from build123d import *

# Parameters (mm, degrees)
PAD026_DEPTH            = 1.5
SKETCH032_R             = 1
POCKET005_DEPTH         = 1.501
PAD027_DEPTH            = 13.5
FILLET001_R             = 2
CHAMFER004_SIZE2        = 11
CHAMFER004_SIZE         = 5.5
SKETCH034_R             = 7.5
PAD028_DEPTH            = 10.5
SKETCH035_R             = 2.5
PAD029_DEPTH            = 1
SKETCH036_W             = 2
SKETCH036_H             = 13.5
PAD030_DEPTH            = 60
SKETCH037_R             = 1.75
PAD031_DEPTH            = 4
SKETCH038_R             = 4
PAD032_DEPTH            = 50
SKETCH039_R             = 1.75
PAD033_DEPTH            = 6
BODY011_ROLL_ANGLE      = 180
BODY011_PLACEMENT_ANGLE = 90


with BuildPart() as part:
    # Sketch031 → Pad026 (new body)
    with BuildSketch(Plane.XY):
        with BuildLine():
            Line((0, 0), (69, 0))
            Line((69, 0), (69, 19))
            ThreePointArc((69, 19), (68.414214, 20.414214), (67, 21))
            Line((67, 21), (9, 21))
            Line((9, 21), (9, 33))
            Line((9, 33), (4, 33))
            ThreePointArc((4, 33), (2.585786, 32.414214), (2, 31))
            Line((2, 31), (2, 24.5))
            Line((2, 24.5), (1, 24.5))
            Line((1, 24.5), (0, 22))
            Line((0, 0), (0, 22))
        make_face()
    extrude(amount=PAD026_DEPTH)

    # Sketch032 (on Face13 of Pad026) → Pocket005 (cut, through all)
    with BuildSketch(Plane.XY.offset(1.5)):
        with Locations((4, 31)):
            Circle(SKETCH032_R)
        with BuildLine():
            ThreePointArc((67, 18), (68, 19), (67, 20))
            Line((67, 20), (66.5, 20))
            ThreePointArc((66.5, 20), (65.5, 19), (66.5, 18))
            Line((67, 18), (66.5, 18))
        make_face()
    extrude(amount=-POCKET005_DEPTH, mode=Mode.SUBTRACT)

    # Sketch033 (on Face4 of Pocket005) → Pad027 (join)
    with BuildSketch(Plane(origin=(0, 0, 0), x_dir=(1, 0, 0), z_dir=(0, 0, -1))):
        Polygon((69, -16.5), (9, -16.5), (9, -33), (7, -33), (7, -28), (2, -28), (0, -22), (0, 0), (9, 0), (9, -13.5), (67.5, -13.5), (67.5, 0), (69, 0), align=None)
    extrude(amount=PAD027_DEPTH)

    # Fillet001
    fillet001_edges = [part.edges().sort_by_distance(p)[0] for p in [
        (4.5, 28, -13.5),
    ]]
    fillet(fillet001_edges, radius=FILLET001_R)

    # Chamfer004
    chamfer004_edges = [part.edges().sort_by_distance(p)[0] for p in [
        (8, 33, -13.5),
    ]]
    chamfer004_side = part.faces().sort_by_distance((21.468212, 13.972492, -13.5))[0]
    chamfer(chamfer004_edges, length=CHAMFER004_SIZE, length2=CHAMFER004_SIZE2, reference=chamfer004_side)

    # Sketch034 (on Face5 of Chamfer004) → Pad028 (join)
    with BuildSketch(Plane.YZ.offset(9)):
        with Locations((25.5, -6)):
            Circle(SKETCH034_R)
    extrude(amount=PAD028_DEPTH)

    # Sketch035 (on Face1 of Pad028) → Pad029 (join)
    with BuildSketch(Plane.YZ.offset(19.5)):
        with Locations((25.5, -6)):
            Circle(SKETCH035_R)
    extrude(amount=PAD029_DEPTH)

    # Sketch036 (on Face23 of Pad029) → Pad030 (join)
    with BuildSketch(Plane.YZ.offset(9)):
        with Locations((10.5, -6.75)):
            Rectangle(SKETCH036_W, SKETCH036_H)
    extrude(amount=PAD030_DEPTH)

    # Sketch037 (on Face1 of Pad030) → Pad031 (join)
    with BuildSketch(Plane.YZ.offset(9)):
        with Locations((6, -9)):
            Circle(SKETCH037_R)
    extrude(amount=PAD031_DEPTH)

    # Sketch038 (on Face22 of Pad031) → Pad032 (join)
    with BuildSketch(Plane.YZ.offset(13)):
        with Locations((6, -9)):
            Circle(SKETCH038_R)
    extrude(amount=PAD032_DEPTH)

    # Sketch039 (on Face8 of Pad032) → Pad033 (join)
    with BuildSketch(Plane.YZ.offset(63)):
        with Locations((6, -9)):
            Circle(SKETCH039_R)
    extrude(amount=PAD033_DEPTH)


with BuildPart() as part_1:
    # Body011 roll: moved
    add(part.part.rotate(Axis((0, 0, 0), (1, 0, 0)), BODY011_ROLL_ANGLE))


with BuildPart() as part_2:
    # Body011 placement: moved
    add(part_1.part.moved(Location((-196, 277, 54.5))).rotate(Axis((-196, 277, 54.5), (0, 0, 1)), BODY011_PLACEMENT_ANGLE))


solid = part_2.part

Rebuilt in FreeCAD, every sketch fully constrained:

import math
import FreeCAD as App
import Part
import Sketcher
Q = App.Units.Quantity


def edges_at(feature, points):
    """Names of the edges that pass closest to the given points."""
    edges = feature.Shape.Edges
    near = lambda p: min(range(len(edges)), key=lambda i: edges[i].distToShape(Part.Vertex(*p))[0])
    return sorted({f"Edge{near(p) + 1}" for p in points})

doc = App.newDocument("Part")
body = doc.addObject("PartDesign::Body", "Body")

# Sketch on XY plane
sketch1 = body.newObject("Sketcher::SketchObject", "Sketch")
sketch1.AttachmentSupport = (doc.getObject("XY_Plane"), [""])
sketch1.MapMode = "FlatFace"
sketch1.addGeometry([
    Part.LineSegment(App.Vector(0, 0, 0), App.Vector(69, 0, 0)),  # 0
    Part.LineSegment(App.Vector(69, 0, 0), App.Vector(69, 19, 0)),  # 1
    Part.ArcOfCircle(Part.Circle(App.Vector(67.000001, 19.000001, 0), App.Vector(0, 0, 1), 1.999999), math.radians(-0.000043), math.radians(90.000043)),  # 2
    Part.LineSegment(App.Vector(67, 21, 0), App.Vector(9, 21, 0)),  # 3
    Part.LineSegment(App.Vector(9, 21, 0), App.Vector(9, 33, 0)),  # 4
    Part.LineSegment(App.Vector(9, 33, 0), App.Vector(4, 33, 0)),  # 5
    Part.ArcOfCircle(Part.Circle(App.Vector(3.999999, 31.000001, 0), App.Vector(0, 0, 1), 1.999999), math.radians(89.999957), math.radians(180.000043)),  # 6
    Part.LineSegment(App.Vector(2, 31, 0), App.Vector(2, 24.5, 0)),  # 7
    Part.LineSegment(App.Vector(2, 24.5, 0), App.Vector(1, 24.5, 0)),  # 8
    Part.LineSegment(App.Vector(1, 24.5, 0), App.Vector(0, 22, 0)),  # 9
    Part.LineSegment(App.Vector(0, 22, 0), App.Vector(0, 0, 0)),  # 10
], False)
sketch1.addConstraint([
    Sketcher.Constraint("Coincident", 0, 2, 1, 1),
    Sketcher.Constraint("Tangent", 1, 2, 2, 1),
    Sketcher.Constraint("Tangent", 2, 2, 3, 1),
    Sketcher.Constraint("Coincident", 3, 2, 4, 1),
    Sketcher.Constraint("Coincident", 4, 2, 5, 1),
    Sketcher.Constraint("Tangent", 5, 2, 6, 1),
    Sketcher.Constraint("Tangent", 6, 2, 7, 1),
    Sketcher.Constraint("Coincident", 7, 2, 8, 1),
    Sketcher.Constraint("Coincident", 8, 2, 9, 1),
    Sketcher.Constraint("Coincident", 9, 2, 10, 1),
    Sketcher.Constraint("Coincident", 10, 2, 0, 1),
    Sketcher.Constraint("Horizontal", 0),
    Sketcher.Constraint("Vertical", 1),
    Sketcher.Constraint("Horizontal", 3),
    Sketcher.Constraint("Vertical", 4),
    Sketcher.Constraint("Horizontal", 5),
    Sketcher.Constraint("Vertical", 7),
    Sketcher.Constraint("Horizontal", 8),
    Sketcher.Constraint("Vertical", 10),
    Sketcher.Constraint("Coincident", 10, 2, -1, 1),
    Sketcher.Constraint("Equal", 2, 6),
    Sketcher.Constraint("Radius", 2, Q("1.999999 mm")),
    Sketcher.Constraint("DistanceX", 0, 1, 0, 2, Q("69 mm")),
    Sketcher.Constraint("DistanceX", 3, 2, 3, 1, Q("58 mm")),
    Sketcher.Constraint("DistanceX", 5, 2, 5, 1, Q("5 mm")),
    Sketcher.Constraint("DistanceX", 8, 2, 8, 1, Q("1 mm")),
    Sketcher.Constraint("DistanceY", 1, 1, 1, 2, Q("19 mm")),
    Sketcher.Constraint("DistanceY", 4, 1, 4, 2, Q("12 mm")),
    Sketcher.Constraint("DistanceY", 10, 2, 10, 1, Q("22 mm")),
    Sketcher.Constraint("DistanceY", 7, 2, 7, 1, Q("6.5 mm")),
])
pad1 = body.newObject("PartDesign::Pad", "Pad")
pad1.Profile = sketch1
pad1.Length = 1.5

# Sketch on XY plane
sketch2 = body.newObject("Sketcher::SketchObject", "Sketch001")
sketch2.AttachmentSupport = (doc.getObject("XY_Plane"), [""])
sketch2.MapMode = "FlatFace"
sketch2.AttachmentOffset = App.Placement(App.Vector(0, 0, 1.5), App.Rotation())
sketch2.addGeometry([
    Part.Circle(App.Vector(4, 31, 0), App.Vector(0, 0, 1), 1),  # 0
    Part.ArcOfCircle(Part.Circle(App.Vector(67, 19, 0), App.Vector(0, 0, 1), 1), math.radians(-90), math.radians(90)),  # 1
    Part.LineSegment(App.Vector(67, 20, 0), App.Vector(66.5, 20, 0)),  # 2
    Part.ArcOfCircle(Part.Circle(App.Vector(66.5, 19, 0), App.Vector(0, 0, 1), 1), math.radians(90), math.radians(270)),  # 3
    Part.LineSegment(App.Vector(66.5, 18, 0), App.Vector(67, 18, 0)),  # 4
], False)
sketch2.addConstraint([
    Sketcher.Constraint("Tangent", 1, 2, 2, 1),
    Sketcher.Constraint("Tangent", 2, 2, 3, 1),
    Sketcher.Constraint("Tangent", 3, 2, 4, 1),
    Sketcher.Constraint("Tangent", 4, 2, 1, 1),
    Sketcher.Constraint("Horizontal", 2),
    Sketcher.Constraint("Horizontal", 4),
    Sketcher.Constraint("Equal", 0, 1),
    Sketcher.Constraint("Diameter", 0, Q("2 mm")),
    Sketcher.Constraint("DistanceX", 2, 2, 2, 1, Q("0.5 mm")),
    Sketcher.Constraint("DistanceX", -1, 1, 0, 3, Q("4 mm")),
    Sketcher.Constraint("DistanceY", -1, 1, 0, 3, Q("31 mm")),
    Sketcher.Constraint("DistanceX", -1, 1, 1, 3, Q("67 mm")),
    Sketcher.Constraint("DistanceY", -1, 1, 1, 3, Q("19 mm")),
])
pocket1 = body.newObject("PartDesign::Pocket", "Pocket")
pocket1.Profile = sketch2
pocket1.Type = "ThroughAll"

# Sketch on XY plane
sketch3 = body.newObject("Sketcher::SketchObject", "Sketch002")
sketch3.AttachmentSupport = (doc.getObject("XY_Plane"), [""])
sketch3.MapMode = "FlatFace"
sketch3.addGeometry([
    Part.LineSegment(App.Vector(9, 16.5, 0), App.Vector(69, 16.5, 0)),  # 0
    Part.LineSegment(App.Vector(69, 16.5, 0), App.Vector(69, 0, 0)),  # 1
    Part.LineSegment(App.Vector(69, 0, 0), App.Vector(67.5, 0, 0)),  # 2
    Part.LineSegment(App.Vector(67.5, 0, 0), App.Vector(67.5, 13.5, 0)),  # 3
    Part.LineSegment(App.Vector(67.5, 13.5, 0), App.Vector(9, 13.5, 0)),  # 4
    Part.LineSegment(App.Vector(9, 13.5, 0), App.Vector(9, 0, 0)),  # 5
    Part.LineSegment(App.Vector(9, 0, 0), App.Vector(0, 0, 0)),  # 6
    Part.LineSegment(App.Vector(0, 0, 0), App.Vector(0, 22, 0)),  # 7
    Part.LineSegment(App.Vector(0, 22, 0), App.Vector(2, 28, 0)),  # 8
    Part.LineSegment(App.Vector(2, 28, 0), App.Vector(7, 28, 0)),  # 9
    Part.LineSegment(App.Vector(7, 28, 0), App.Vector(7, 33, 0)),  # 10
    Part.LineSegment(App.Vector(7, 33, 0), App.Vector(9, 33, 0)),  # 11
    Part.LineSegment(App.Vector(9, 33, 0), App.Vector(9, 16.5, 0)),  # 12
], False)
sketch3.addConstraint([
    Sketcher.Constraint("Coincident", 0, 2, 1, 1),
    Sketcher.Constraint("Coincident", 1, 2, 2, 1),
    Sketcher.Constraint("Coincident", 2, 2, 3, 1),
    Sketcher.Constraint("Coincident", 3, 2, 4, 1),
    Sketcher.Constraint("Coincident", 4, 2, 5, 1),
    Sketcher.Constraint("Coincident", 5, 2, 6, 1),
    Sketcher.Constraint("Coincident", 6, 2, 7, 1),
    Sketcher.Constraint("Coincident", 7, 2, 8, 1),
    Sketcher.Constraint("Coincident", 8, 2, 9, 1),
    Sketcher.Constraint("Coincident", 9, 2, 10, 1),
    Sketcher.Constraint("Coincident", 10, 2, 11, 1),
    Sketcher.Constraint("Coincident", 11, 2, 12, 1),
    Sketcher.Constraint("Coincident", 12, 2, 0, 1),
    Sketcher.Constraint("Horizontal", 0),
    Sketcher.Constraint("Vertical", 1),
    Sketcher.Constraint("Horizontal", 2),
    Sketcher.Constraint("Vertical", 3),
    Sketcher.Constraint("Horizontal", 4),
    Sketcher.Constraint("Vertical", 5),
    Sketcher.Constraint("Horizontal", 6),
    Sketcher.Constraint("Vertical", 7),
    Sketcher.Constraint("Horizontal", 9),
    Sketcher.Constraint("Vertical", 10),
    Sketcher.Constraint("Horizontal", 11),
    Sketcher.Constraint("Vertical", 12),
    Sketcher.Constraint("Coincident", 6, 2, -1, 1),
    Sketcher.Constraint("PointOnObject", 1, 2, -1),
    Sketcher.Constraint("Vertical", 5, 2, 11, 2),
    Sketcher.Constraint("Equal", 9, 10),
    Sketcher.Constraint("Equal", 1, 12),
    Sketcher.Constraint("DistanceX", 0, 1, 0, 2, Q("60 mm")),
    Sketcher.Constraint("DistanceX", 6, 2, 6, 1, Q("9 mm")),
    Sketcher.Constraint("DistanceX", 9, 1, 9, 2, Q("5 mm")),
    Sketcher.Constraint("DistanceX", 11, 1, 11, 2, Q("2 mm")),
    Sketcher.Constraint("DistanceY", 7, 1, 7, 2, Q("22 mm")),
    Sketcher.Constraint("DistanceX", 2, 2, 2, 1, Q("1.5 mm")),
    Sketcher.Constraint("DistanceY", 1, 2, 1, 1, Q("16.5 mm")),
    Sketcher.Constraint("DistanceY", 3, 1, 3, 2, Q("13.5 mm")),
])
pad2 = body.newObject("PartDesign::Pad", "Pad001")
pad2.Profile = sketch3
pad2.Length = 13.5
pad2.Reversed = True
doc.recompute()

fillet = body.newObject("PartDesign::Fillet", "Fillet")
fillet.Base = (pad2, edges_at(pad2, [(4.5, 28, -13.5)]))
fillet.Radius = 2
doc.recompute()

chamfer = body.newObject("PartDesign::Chamfer", "Chamfer")
chamfer.Base = (fillet, edges_at(fillet, [(8, 33, -13.5)]))
chamfer.ChamferType = "Two distances"
chamfer.Size = 5.5
chamfer.Size2 = 11

# Sketch on YZ plane
sketch4 = body.newObject("Sketcher::SketchObject", "Sketch003")
sketch4.AttachmentSupport = (doc.getObject("YZ_Plane"), [""])
sketch4.MapMode = "FlatFace"
sketch4.AttachmentOffset = App.Placement(App.Vector(0, 0, 9), App.Rotation())
sketch4.addGeometry(Part.Circle(App.Vector(25.5, -6, 0), App.Vector(0, 0, 1), 7.5), False)
sketch4.addConstraint([
    Sketcher.Constraint("Diameter", 0, Q("15 mm")),
    Sketcher.Constraint("DistanceY", 0, 3, -1, 1, Q("6 mm")),
    Sketcher.Constraint("DistanceX", -1, 1, 0, 3, Q("25.5 mm")),
])
pad3 = body.newObject("PartDesign::Pad", "Pad002")
pad3.Profile = sketch4
pad3.Length = 10.5

# Sketch on YZ plane
sketch5 = body.newObject("Sketcher::SketchObject", "Sketch004")
sketch5.AttachmentSupport = (doc.getObject("YZ_Plane"), [""])
sketch5.MapMode = "FlatFace"
sketch5.AttachmentOffset = App.Placement(App.Vector(0, 0, 19.5), App.Rotation())
sketch5.addGeometry(Part.Circle(App.Vector(25.5, -6, 0), App.Vector(0, 0, 1), 2.5), False)
sketch5.addConstraint([
    Sketcher.Constraint("Diameter", 0, Q("5 mm")),
    Sketcher.Constraint("DistanceY", 0, 3, -1, 1, Q("6 mm")),
    Sketcher.Constraint("DistanceX", -1, 1, 0, 3, Q("25.5 mm")),
])
pad4 = body.newObject("PartDesign::Pad", "Pad003")
pad4.Profile = sketch5
pad4.Length = 1

# Sketch on YZ plane
sketch6 = body.newObject("Sketcher::SketchObject", "Sketch005")
sketch6.AttachmentSupport = (doc.getObject("YZ_Plane"), [""])
sketch6.MapMode = "FlatFace"
sketch6.AttachmentOffset = App.Placement(App.Vector(0, 0, 9), App.Rotation())
sketch6.addGeometry([
    Part.LineSegment(App.Vector(9.5, 0, 0), App.Vector(9.5, -13.5, 0)),
    Part.LineSegment(App.Vector(9.5, -13.5, 0), App.Vector(11.5, -13.5, 0)),
    Part.LineSegment(App.Vector(11.5, -13.5, 0), App.Vector(11.5, 0, 0)),
    Part.LineSegment(App.Vector(11.5, 0, 0), App.Vector(9.5, 0, 0)),
], False)
sketch6.addConstraint([
    Sketcher.Constraint("Coincident", 0, 2, 1, 1),
    Sketcher.Constraint("Coincident", 1, 2, 2, 1),
    Sketcher.Constraint("Coincident", 2, 2, 3, 1),
    Sketcher.Constraint("Coincident", 3, 2, 0, 1),
    Sketcher.Constraint("Vertical", 0),
    Sketcher.Constraint("Horizontal", 1),
    Sketcher.Constraint("Vertical", 2),
    Sketcher.Constraint("Horizontal", 3),
    Sketcher.Constraint("PointOnObject", 2, 2, -1),
    Sketcher.Constraint("DistanceX", 1, 1, 1, 2, Q("2 mm")),
    Sketcher.Constraint("DistanceY", 0, 2, 0, 1, Q("13.5 mm")),
    Sketcher.Constraint("DistanceX", -1, 1, 0, 2, Q("9.5 mm")),
])
pad5 = body.newObject("PartDesign::Pad", "Pad004")
pad5.Profile = sketch6
pad5.Length = 60

# Sketch on YZ plane
sketch7 = body.newObject("Sketcher::SketchObject", "Sketch006")
sketch7.AttachmentSupport = (doc.getObject("YZ_Plane"), [""])
sketch7.MapMode = "FlatFace"
sketch7.AttachmentOffset = App.Placement(App.Vector(0, 0, 9), App.Rotation())
sketch7.addGeometry(Part.Circle(App.Vector(6, -9, 0), App.Vector(0, 0, 1), 1.75), False)
sketch7.addConstraint([
    Sketcher.Constraint("Diameter", 0, Q("3.5 mm")),
    Sketcher.Constraint("DistanceX", -1, 1, 0, 3, Q("6 mm")),
    Sketcher.Constraint("DistanceY", 0, 3, -1, 1, Q("9 mm")),
])
pad6 = body.newObject("PartDesign::Pad", "Pad005")
pad6.Profile = sketch7
pad6.Length = 4

# Sketch on YZ plane
sketch8 = body.newObject("Sketcher::SketchObject", "Sketch007")
sketch8.AttachmentSupport = (doc.getObject("YZ_Plane"), [""])
sketch8.MapMode = "FlatFace"
sketch8.AttachmentOffset = App.Placement(App.Vector(0, 0, 13), App.Rotation())
sketch8.addGeometry(Part.Circle(App.Vector(6, -9, 0), App.Vector(0, 0, 1), 4), False)
sketch8.addConstraint([
    Sketcher.Constraint("Diameter", 0, Q("8 mm")),
    Sketcher.Constraint("DistanceX", -1, 1, 0, 3, Q("6 mm")),
    Sketcher.Constraint("DistanceY", 0, 3, -1, 1, Q("9 mm")),
])
pad7 = body.newObject("PartDesign::Pad", "Pad006")
pad7.Profile = sketch8
pad7.Length = 50

# Sketch on YZ plane
sketch9 = body.newObject("Sketcher::SketchObject", "Sketch008")
sketch9.AttachmentSupport = (doc.getObject("YZ_Plane"), [""])
sketch9.MapMode = "FlatFace"
sketch9.AttachmentOffset = App.Placement(App.Vector(0, 0, 63), App.Rotation())
sketch9.addGeometry(Part.Circle(App.Vector(6, -9, 0), App.Vector(0, 0, 1), 1.75), False)
sketch9.addConstraint([
    Sketcher.Constraint("Diameter", 0, Q("3.5 mm")),
    Sketcher.Constraint("DistanceX", -1, 1, 0, 3, Q("6 mm")),
    Sketcher.Constraint("DistanceY", 0, 3, -1, 1, Q("9 mm")),
])
pad8 = body.newObject("PartDesign::Pad", "Pad007")
pad8.Profile = sketch9
pad8.Length = 6
body2 = doc.addObject("PartDesign::Body", "Body001")
doc.recompute()

body.Placement = App.Placement(App.Vector(0, 0, 0), App.Rotation(App.Vector(1, 0, 0), 180))
boolean = body2.newObject("PartDesign::Boolean", "Boolean")
boolean.Type = "Fuse"
boolean.addObjects([body])
body3 = doc.addObject("PartDesign::Body", "Body002")
doc.recompute()

body2.Placement = App.Placement(App.Vector(-196, 277, 54.5), App.Rotation(App.Vector(0, 0, 1), 90))
boolean2 = body3.newObject("PartDesign::Boolean", "Boolean001")
boolean2.Type = "Fuse"
boolean2.addObjects([body2])

doc.recompute()
